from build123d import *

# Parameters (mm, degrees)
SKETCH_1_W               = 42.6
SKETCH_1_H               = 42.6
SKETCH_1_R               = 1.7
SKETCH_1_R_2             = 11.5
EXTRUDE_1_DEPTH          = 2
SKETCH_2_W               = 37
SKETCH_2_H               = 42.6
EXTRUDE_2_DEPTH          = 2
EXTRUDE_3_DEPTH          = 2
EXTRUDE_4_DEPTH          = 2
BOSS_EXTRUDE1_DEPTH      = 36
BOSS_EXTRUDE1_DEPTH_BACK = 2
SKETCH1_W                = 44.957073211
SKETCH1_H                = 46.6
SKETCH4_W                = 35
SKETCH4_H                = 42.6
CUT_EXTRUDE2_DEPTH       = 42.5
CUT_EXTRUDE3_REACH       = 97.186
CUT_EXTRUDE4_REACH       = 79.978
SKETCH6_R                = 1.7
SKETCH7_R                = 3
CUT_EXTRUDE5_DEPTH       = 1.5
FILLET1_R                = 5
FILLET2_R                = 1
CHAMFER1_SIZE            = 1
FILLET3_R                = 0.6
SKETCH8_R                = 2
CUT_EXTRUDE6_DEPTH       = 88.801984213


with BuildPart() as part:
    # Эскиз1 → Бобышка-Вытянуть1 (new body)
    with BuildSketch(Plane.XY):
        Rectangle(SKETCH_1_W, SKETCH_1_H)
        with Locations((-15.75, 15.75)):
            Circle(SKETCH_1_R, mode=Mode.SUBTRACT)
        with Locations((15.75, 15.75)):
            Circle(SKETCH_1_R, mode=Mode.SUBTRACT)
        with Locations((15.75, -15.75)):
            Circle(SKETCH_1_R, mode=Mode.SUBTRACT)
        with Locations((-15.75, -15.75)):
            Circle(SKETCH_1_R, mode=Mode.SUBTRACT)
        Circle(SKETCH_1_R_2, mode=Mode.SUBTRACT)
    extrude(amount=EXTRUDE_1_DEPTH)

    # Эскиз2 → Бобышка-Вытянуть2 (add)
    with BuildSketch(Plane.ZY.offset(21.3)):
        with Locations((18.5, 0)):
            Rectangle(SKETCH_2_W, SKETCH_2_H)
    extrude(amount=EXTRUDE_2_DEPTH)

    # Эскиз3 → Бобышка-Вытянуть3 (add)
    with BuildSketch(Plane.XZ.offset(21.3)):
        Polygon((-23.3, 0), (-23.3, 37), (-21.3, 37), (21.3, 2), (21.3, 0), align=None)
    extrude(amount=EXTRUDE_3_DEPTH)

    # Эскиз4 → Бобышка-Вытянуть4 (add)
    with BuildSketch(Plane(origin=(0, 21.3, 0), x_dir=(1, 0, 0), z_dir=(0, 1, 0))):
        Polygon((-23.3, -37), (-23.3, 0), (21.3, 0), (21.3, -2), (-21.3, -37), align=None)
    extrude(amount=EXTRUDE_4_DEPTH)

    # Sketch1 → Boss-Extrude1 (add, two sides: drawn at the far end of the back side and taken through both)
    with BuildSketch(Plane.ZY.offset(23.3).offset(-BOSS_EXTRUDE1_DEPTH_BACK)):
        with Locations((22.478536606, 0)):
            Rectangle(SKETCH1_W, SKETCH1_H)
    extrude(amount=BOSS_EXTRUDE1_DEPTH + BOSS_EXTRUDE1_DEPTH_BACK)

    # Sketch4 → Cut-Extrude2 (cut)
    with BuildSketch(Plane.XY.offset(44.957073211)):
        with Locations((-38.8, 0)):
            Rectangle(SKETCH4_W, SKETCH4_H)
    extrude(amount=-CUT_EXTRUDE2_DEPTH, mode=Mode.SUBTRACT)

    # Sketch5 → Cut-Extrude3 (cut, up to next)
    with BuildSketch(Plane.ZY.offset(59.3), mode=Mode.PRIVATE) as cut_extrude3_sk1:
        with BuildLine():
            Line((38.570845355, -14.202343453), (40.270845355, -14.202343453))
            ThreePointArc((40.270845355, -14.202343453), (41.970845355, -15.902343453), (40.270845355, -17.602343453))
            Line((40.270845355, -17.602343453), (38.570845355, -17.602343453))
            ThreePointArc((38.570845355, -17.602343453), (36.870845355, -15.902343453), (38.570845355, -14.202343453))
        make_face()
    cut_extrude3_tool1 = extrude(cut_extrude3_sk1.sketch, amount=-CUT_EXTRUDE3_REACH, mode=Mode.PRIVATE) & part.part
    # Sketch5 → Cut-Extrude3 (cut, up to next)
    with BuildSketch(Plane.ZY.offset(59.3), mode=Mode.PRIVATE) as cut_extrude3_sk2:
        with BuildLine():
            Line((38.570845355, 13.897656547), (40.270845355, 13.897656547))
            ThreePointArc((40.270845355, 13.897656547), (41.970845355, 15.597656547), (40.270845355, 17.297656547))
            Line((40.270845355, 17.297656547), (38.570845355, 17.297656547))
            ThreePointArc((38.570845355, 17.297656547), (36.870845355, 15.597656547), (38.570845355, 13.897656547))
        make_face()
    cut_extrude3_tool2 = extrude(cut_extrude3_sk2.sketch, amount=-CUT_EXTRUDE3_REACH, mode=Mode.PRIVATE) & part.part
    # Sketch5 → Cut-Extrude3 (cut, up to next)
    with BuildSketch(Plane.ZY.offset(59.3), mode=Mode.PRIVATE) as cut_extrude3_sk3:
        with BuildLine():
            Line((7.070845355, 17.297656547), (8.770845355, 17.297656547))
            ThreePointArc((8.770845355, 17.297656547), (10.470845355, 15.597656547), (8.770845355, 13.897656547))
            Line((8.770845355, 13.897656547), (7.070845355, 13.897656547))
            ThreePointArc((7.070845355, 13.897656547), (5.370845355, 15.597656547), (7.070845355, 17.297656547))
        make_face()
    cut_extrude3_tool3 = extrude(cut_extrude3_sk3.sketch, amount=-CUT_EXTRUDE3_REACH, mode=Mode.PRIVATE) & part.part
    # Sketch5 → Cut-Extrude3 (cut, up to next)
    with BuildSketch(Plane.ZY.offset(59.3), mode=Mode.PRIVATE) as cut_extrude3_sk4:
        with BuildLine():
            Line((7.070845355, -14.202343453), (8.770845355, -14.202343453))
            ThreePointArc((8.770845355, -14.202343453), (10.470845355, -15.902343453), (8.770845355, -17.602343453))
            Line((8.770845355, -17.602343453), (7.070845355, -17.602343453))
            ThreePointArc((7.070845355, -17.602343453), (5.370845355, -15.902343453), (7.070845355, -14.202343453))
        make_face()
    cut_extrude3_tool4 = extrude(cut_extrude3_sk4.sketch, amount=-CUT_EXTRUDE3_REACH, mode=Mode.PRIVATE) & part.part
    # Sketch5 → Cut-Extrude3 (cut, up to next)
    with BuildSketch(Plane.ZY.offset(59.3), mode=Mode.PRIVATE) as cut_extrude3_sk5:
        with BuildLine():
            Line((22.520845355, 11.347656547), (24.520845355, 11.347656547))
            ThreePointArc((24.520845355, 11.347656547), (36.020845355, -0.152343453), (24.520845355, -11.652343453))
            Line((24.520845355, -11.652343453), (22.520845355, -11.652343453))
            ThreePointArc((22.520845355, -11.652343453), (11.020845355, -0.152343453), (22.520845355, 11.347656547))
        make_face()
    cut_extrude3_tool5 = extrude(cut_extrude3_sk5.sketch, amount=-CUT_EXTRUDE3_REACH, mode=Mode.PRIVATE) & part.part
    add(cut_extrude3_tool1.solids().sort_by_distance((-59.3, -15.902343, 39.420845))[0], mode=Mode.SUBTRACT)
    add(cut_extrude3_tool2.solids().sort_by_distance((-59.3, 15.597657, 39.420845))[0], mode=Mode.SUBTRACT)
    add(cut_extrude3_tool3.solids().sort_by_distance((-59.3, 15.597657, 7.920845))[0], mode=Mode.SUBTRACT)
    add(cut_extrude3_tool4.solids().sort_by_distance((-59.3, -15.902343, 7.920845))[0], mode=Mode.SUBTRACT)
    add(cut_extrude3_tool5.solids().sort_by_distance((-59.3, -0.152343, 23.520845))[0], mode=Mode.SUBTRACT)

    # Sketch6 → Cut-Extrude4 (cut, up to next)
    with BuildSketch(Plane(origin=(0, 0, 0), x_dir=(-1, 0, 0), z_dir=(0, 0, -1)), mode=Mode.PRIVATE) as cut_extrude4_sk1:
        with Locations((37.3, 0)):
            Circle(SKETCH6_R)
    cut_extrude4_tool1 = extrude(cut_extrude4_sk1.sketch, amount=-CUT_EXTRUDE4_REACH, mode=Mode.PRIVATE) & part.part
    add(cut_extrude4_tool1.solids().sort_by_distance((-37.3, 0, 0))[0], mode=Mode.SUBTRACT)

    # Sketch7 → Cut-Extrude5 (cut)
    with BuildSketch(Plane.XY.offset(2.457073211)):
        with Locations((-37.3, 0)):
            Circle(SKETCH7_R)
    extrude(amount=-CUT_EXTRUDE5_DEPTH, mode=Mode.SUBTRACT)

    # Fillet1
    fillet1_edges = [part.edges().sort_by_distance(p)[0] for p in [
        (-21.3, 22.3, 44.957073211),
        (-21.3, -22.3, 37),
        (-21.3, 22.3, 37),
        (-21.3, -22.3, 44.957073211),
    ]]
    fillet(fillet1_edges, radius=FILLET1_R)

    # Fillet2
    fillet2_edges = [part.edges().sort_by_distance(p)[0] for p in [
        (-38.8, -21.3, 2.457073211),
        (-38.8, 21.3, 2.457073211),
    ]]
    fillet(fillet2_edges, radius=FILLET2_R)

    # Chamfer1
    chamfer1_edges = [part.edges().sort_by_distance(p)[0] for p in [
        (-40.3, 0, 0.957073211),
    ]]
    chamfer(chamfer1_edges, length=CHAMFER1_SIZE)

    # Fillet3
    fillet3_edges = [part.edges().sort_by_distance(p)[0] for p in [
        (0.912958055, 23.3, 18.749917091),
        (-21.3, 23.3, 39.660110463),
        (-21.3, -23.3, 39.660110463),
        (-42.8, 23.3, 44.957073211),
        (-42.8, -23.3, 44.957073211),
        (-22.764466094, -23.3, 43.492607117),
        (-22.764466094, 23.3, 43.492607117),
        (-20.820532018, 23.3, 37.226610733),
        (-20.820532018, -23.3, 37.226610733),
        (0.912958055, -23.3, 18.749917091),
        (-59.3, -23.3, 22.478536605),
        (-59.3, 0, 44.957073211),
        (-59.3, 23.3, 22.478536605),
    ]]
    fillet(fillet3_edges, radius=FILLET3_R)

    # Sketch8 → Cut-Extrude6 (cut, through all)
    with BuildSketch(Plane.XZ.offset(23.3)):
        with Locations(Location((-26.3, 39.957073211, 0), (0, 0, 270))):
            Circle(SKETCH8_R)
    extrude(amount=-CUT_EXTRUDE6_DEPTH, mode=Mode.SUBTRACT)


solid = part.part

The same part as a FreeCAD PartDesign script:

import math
import FreeCAD as App
import Part
import Sketcher
Q = App.Units.Quantity


def edges_at(feature, points):
    """Names of the edges that pass closest to the given points."""
    edges = feature.Shape.Edges
    near = lambda p: min(range(len(edges)), key=lambda i: edges[i].distToShape(Part.Vertex(*p))[0])
    return sorted({f"Edge{near(p) + 1}" for p in points})


def add_polygon(sketch, points):
    """Adds a closed chain of lines whose ends are joined by coincident constraints."""
    first, n = sketch.GeometryCount, len(points)
    for a, b in zip(points, points[1:] + points[:1]):
        sketch.addGeometry(Part.LineSegment(App.Vector(*a, 0), App.Vector(*b, 0)), False)
    for i in range(n):
        sketch.addConstraint(Sketcher.Constraint("Coincident", first + i, 2, first + (i + 1) % n, 1))

doc = App.newDocument("Part")
body = doc.addObject("PartDesign::Body", "Body")

# Sketch on XY plane
sketch1 = doc.addObject("Sketcher::SketchObject", "Sketch")
body.addObject(sketch1)
sketch1.AttachmentSupport = (doc.XY_Plane, [""])
sketch1.MapMode = "FlatFace"
add_polygon(sketch1, [(-21.3, 21.3), (-21.3, -21.3), (21.3, -21.3), (21.3, 21.3)])  # lines 0-3
sketch1.addGeometry(Part.Circle(App.Vector(-15.8, -15.8, 0), App.Vector(0, 0, 1), 1.7), False)  # 4
sketch1.addGeometry(Part.Circle(App.Vector(15.8, -15.8, 0), App.Vector(0, 0, 1), 1.7), False)  # 5
sketch1.addGeometry(Part.Circle(App.Vector(-15.8, 15.8, 0), App.Vector(0, 0, 1), 1.7), False)  # 6
sketch1.addGeometry(Part.Circle(App.Vector(0, 0, 0), App.Vector(0, 0, 1), 11.5), False)  # 7
sketch1.addGeometry(Part.Circle(App.Vector(15.8, 15.8, 0), App.Vector(0, 0, 1), 1.7), False)  # 8
sketch1.addConstraint([
    Sketcher.Constraint("Vertical", 0),
    Sketcher.Constraint("Horizontal", 1),
    Sketcher.Constraint("Vertical", 2),
    Sketcher.Constraint("Horizontal", 3),
    Sketcher.Constraint("Coincident", 7, 3, -1, 1),
    Sketcher.Constraint("Equal", 4, 5),
    Sketcher.Constraint("Equal", 5, 6),
    Sketcher.Constraint("Equal", 6, 8),
    Sketcher.Constraint("Symmetric", 5, 3, 6, 3, -1, 1),
    Sketcher.Constraint("Symmetric", 4, 3, 8, 3, -1, 1),
    Sketcher.Constraint("Symmetric", 0, 2, 2, 2, -1, 1),
    Sketcher.Constraint("Symmetric", 4, 3, 5, 3, -2),
    Sketcher.Constraint("Equal", 3, 0),
    Sketcher.Constraint("Diameter", 7, Q("23 mm")),
    Sketcher.Constraint("Diameter", 4, Q("3.4 mm")),
    Sketcher.Constraint("DistanceX", 1, 1, 1, 2, Q("42.6 mm")),
    Sketcher.Constraint("DistanceX", 4, 3, 5, 3, Q("31.5 mm")),
    Sketcher.Constraint("DistanceY", 4, 3, 6, 3, Q("31.5 mm")),
])
pad1 = doc.addObject("PartDesign::Pad", "Pad")
body.addObject(pad1)
pad1.Profile = sketch1
pad1.Length = 2

# Sketch on YZ plane
sketch2 = doc.addObject("Sketcher::SketchObject", "Sketch001")
body.addObject(sketch2)
sketch2.AttachmentSupport = (doc.YZ_Plane, [""])
sketch2.MapMode = "FlatFace"
sketch2.AttachmentOffset = App.Placement(App.Vector(0, 0, -21.3), App.Rotation())
add_polygon(sketch2, [(21, 0), (-21, 0), (-21, 37), (21, 37)])  # lines 0-3
sketch2.addConstraint([
    Sketcher.Constraint("Horizontal", 0),
    Sketcher.Constraint("Vertical", 1),
    Sketcher.Constraint("Horizontal", 2),
    Sketcher.Constraint("Vertical", 3),
    Sketcher.Constraint("Symmetric", 0, 2, 3, 2, -1, 1),
    Sketcher.Constraint("DistanceY", 1, 1, 1, 2, Q("37 mm")),
    Sketcher.Constraint("DistanceX", 0, 2, 0, 1, Q("42.6 mm")),
])
pad2 = doc.addObject("PartDesign::Pad", "Pad001")
body.addObject(pad2)
pad2.Profile = sketch2
pad2.Length = 2
pad2.Reversed = True

# Sketch on XZ plane
sketch3 = doc.addObject("Sketcher::SketchObject", "Sketch002")
body.addObject(sketch3)
sketch3.AttachmentSupport = (doc.XZ_Plane, [""])
sketch3.MapMode = "FlatFace"
sketch3.AttachmentOffset = App.Placement(App.Vector(0, 0, 21.3), App.Rotation())
add_polygon(sketch3, [(-23.3, 37), (-23.3, 0), (21.3, 0), (21.3, 2), (-21.3, 37)])  # lines 0-4
sketch3.addConstraint([
    Sketcher.Constraint("Vertical", 0),
    Sketcher.Constraint("Horizontal", 1),
    Sketcher.Constraint("Vertical", 2),
    Sketcher.Constraint("Horizontal", 4),
    Sketcher.Constraint("PointOnObject", 0, 2, -1),
    Sketcher.Constraint("Equal", 4, 2),
    Sketcher.Constraint("DistanceX", 4, 2, 4, 1, Q("2 mm")),
    Sketcher.Constraint("DistanceY", 0, 2, 0, 1, Q("37 mm")),
    Sketcher.Constraint("DistanceX", 1, 1, 1, 2, Q("44.6 mm")),
    Sketcher.Constraint("DistanceX", 0, 2, -1, 1, Q("23.3 mm")),
])
pad3 = doc.addObject("PartDesign::Pad", "Pad002")
body.addObject(pad3)
pad3.Profile = sketch3
pad3.Length = 2

# Sketch on XZ plane
sketch4 = doc.addObject("Sketcher::SketchObject", "Sketch003")
body.addObject(sketch4)
sketch4.AttachmentSupport = (doc.XZ_Plane, [""])
sketch4.MapMode = "FlatFace"
sketch4.AttachmentOffset = App.Placement(App.Vector(0, 0, -21.3), App.Rotation())
add_polygon(sketch4, [(-23.3, 0), (-23.3, 37), (-21.3, 37), (21.3, 2), (21.3, 0)])  # lines 0-4
sketch4.addConstraint([
    Sketcher.Constraint("Vertical", 0),
    Sketcher.Constraint("Horizontal", 1),
    Sketcher.Constraint("Vertical", 3),
    Sketcher.Constraint("Horizontal", 4),
    Sketcher.Constraint("PointOnObject", 3, 2, -1),
    Sketcher.Constraint("Equal", 1, 3),
    Sketcher.Constraint("DistanceX", 1, 1, 1, 2, Q("2 mm")),
    Sketcher.Constraint("DistanceY", 0, 1, 0, 2, Q("37 mm")),
    Sketcher.Constraint("DistanceX", 4, 2, 4, 1, Q("44.6 mm")),
    Sketcher.Constraint("DistanceX", 0, 2, -1, 1, Q("23.3 mm")),
])
pad4 = doc.addObject("PartDesign::Pad", "Pad003")
body.addObject(pad4)
pad4.Profile = sketch4
pad4.Length = 2
pad4.Reversed = True

# Sketch on YZ plane
sketch5 = doc.addObject("Sketcher::SketchObject", "Sketch004")
body.addObject(sketch5)
sketch5.AttachmentSupport = (doc.YZ_Plane, [""])
sketch5.MapMode = "FlatFace"
sketch5.AttachmentOffset = App.Placement(App.Vector(0, 0, -23.3), App.Rotation())
add_polygon(sketch5, [(23, 0), (-23, 0), (-23, 45), (23, 45)])  # lines 0-3
sketch5.addConstraint([
    Sketcher.Constraint("Horizontal", 0),
    Sketcher.Constraint("Vertical", 1),
    Sketcher.Constraint("Horizontal", 2),
    Sketcher.Constraint("Vertical", 3),
    Sketcher.Constraint("Symmetric", 0, 2, 3, 2, -1, 1),
    Sketcher.Constraint("DistanceX", 0, 2, 0, 1, Q("46.6 mm")),
    Sketcher.Constraint("DistanceY", 1, 1, 1, 2, Q("44.957073 mm")),
])
pad5 = doc.addObject("PartDesign::Pad", "Pad004")
body.addObject(pad5)
pad5.Profile = sketch5
pad5.Type = "TwoLengths"
pad5.Length = 36
pad5.Length2 = 2
pad5.Reversed = True

# Sketch on XY plane
sketch6 = doc.addObject("Sketcher::SketchObject", "Sketch005")
body.addObject(sketch6)
sketch6.AttachmentSupport = (doc.XY_Plane, [""])
sketch6.MapMode = "FlatFace"
sketch6.AttachmentOffset = App.Placement(App.Vector(0, 0, 44.957073), App.Rotation())
add_polygon(sketch6, [(-56, 21), (-56, -21), (-21, -21), (-21, 21)])  # lines 0-3
sketch6.addConstraint([
    Sketcher.Constraint("Vertical", 0),
    Sketcher.Constraint("Horizontal", 1),
    Sketcher.Constraint("Vertical", 2),
    Sketcher.Constraint("Horizontal", 3),
    Sketcher.Constraint("DistanceX", 1, 1, 1, 2, Q("35 mm")),
    Sketcher.Constraint("DistanceY", 0, 2, 0, 1, Q("42.6 mm")),
    Sketcher.Constraint("DistanceX", 0, 2, -1, 1, Q("56.3 mm")),
    Sketcher.Constraint("DistanceY", 0, 2, -1, 1, Q("21.3 mm")),
])
pocket1 = doc.addObject("PartDesign::Pocket", "Pocket")
body.addObject(pocket1)
pocket1.Profile = sketch6
pocket1.Length = 42.5

# Sketch on YZ plane
sketch7 = doc.addObject("Sketcher::SketchObject", "Sketch006")
body.addObject(sketch7)
sketch7.AttachmentSupport = (doc.YZ_Plane, [""])
sketch7.MapMode = "FlatFace"
sketch7.AttachmentOffset = App.Placement(App.Vector(0, 0, -59.3), App.Rotation())
sketch7.addGeometry([
    Part.LineSegment(App.Vector(-14.2, 40.3, 0), App.Vector(-14.2, 38.6, 0)),
    Part.ArcOfCircle(Part.Circle(App.Vector(-15.9, 38.6, 0), App.Vector(0, 0, 1), 1.7), math.radians(180), math.radians(360)),
    Part.LineSegment(App.Vector(-17.6, 38.6, 0), App.Vector(-17.6, 40.3, 0)),
    Part.ArcOfCircle(Part.Circle(App.Vector(-15.9, 40.3, 0), App.Vector(0, 0, 1), 1.7), math.radians(0), math.radians(180)),
], False)
sketch7.addConstraint([
    Sketcher.Constraint("Tangent", 0, 2, 1, 2),
    Sketcher.Constraint("Tangent", 1, 1, 2, 1),
    Sketcher.Constraint("Tangent", 2, 2, 3, 2),
    Sketcher.Constraint("Tangent", 3, 1, 0, 1),
    Sketcher.Constraint("Vertical", 0),
    Sketcher.Constraint("Vertical", 2),
    Sketcher.Constraint("Radius", 1, Q("1.7 mm")),
    Sketcher.Constraint("DistanceY", 0, 2, 0, 1, Q("1.7 mm")),
    Sketcher.Constraint("DistanceX", 1, 3, -1, 1, Q("15.902343 mm")),
    Sketcher.Constraint("DistanceY", -1, 1, 1, 3, Q("38.570845 mm")),
])
pocket2 = doc.addObject("PartDesign::Pocket", "Pocket001")
body.addObject(pocket2)
pocket2.Profile = sketch7
pocket2.Type = "UpToFirst"
pocket2.Reversed = True

# Sketch on YZ plane
sketch8 = doc.addObject("Sketcher::SketchObject", "Sketch007")
body.addObject(sketch8)
sketch8.AttachmentSupport = (doc.YZ_Plane, [""])
sketch8.MapMode = "FlatFace"
sketch8.AttachmentOffset = App.Placement(App.Vector(0, 0, -59.3), App.Rotation())
sketch8.addGeometry([
    Part.LineSegment(App.Vector(13.9, 38.6, 0), App.Vector(13.9, 40.3, 0)),
    Part.ArcOfCircle(Part.Circle(App.Vector(15.6, 40.3, 0), App.Vector(0, 0, 1), 1.7), math.radians(0), math.radians(180)),
    Part.LineSegment(App.Vector(17.3, 40.3, 0), App.Vector(17.3, 38.6, 0)),
    Part.ArcOfCircle(Part.Circle(App.Vector(15.6, 38.6, 0), App.Vector(0, 0, 1), 1.7), math.radians(180), math.radians(360)),
], False)
sketch8.addConstraint([
    Sketcher.Constraint("Tangent", 0, 2, 1, 2),
    Sketcher.Constraint("Tangent", 1, 1, 2, 1),
    Sketcher.Constraint("Tangent", 2, 2, 3, 2),
    Sketcher.Constraint("Tangent", 3, 1, 0, 1),
    Sketcher.Constraint("Vertical", 0),
    Sketcher.Constraint("Vertical", 2),
    Sketcher.Constraint("Radius", 1, Q("1.7 mm")),
    Sketcher.Constraint("DistanceY", 0, 1, 0, 2, Q("1.7 mm")),
    Sketcher.Constraint("DistanceX", -1, 1, 1, 3, Q("15.597657 mm")),
    Sketcher.Constraint("DistanceY", -1, 1, 1, 3, Q("40.270845 mm")),
])
pocket3 = doc.addObject("PartDesign::Pocket", "Pocket002")
body.addObject(pocket3)
pocket3.Profile = sketch8
pocket3.Type = "UpToFirst"
pocket3.Reversed = True

# Sketch on YZ plane
sketch9 = doc.addObject("Sketcher::SketchObject", "Sketch008")
body.addObject(sketch9)
sketch9.AttachmentSupport = (doc.YZ_Plane, [""])
sketch9.MapMode = "FlatFace"
sketch9.AttachmentOffset = App.Placement(App.Vector(0, 0, -59.3), App.Rotation())
sketch9.addGeometry([
    Part.LineSegment(App.Vector(17.3, 8.8, 0), App.Vector(17.3, 7.1, 0)),
    Part.ArcOfCircle(Part.Circle(App.Vector(15.6, 7.1, 0), App.Vector(0, 0, 1), 1.7), math.radians(180), math.radians(360)),
    Part.LineSegment(App.Vector(13.9, 7.1, 0), App.Vector(13.9, 8.8, 0)),
    Part.ArcOfCircle(Part.Circle(App.Vector(15.6, 8.8, 0), App.Vector(0, 0, 1), 1.7), math.radians(0), math.radians(180)),
], False)
sketch9.addConstraint([
    Sketcher.Constraint("Tangent", 0, 2, 1, 2),
    Sketcher.Constraint("Tangent", 1, 1, 2, 1),
    Sketcher.Constraint("Tangent", 2, 2, 3, 2),
    Sketcher.Constraint("Tangent", 3, 1, 0, 1),
    Sketcher.Constraint("Vertical", 0),
    Sketcher.Constraint("Vertical", 2),
    Sketcher.Constraint("Radius", 1, Q("1.7 mm")),
    Sketcher.Constraint("DistanceY", 0, 2, 0, 1, Q("1.7 mm")),
    Sketcher.Constraint("DistanceX", -1, 1, 1, 3, Q("15.597657 mm")),
    Sketcher.Constraint("DistanceY", -1, 1, 1, 3, Q("7.070845 mm")),
])
pocket4 = doc.addObject("PartDesign::Pocket", "Pocket003")
body.addObject(pocket4)
pocket4.Profile = sketch9
pocket4.Type = "UpToFirst"
pocket4.Reversed = True

# Sketch on YZ plane
sketch10 = doc.addObject("Sketcher::SketchObject", "Sketch009")
body.addObject(sketch10)
sketch10.AttachmentSupport = (doc.YZ_Plane, [""])
sketch10.MapMode = "FlatFace"
sketch10.AttachmentOffset = App.Placement(App.Vector(0, 0, -59.3), App.Rotation())
sketch10.addGeometry([
    Part.LineSegment(App.Vector(-14.2, 8.8, 0), App.Vector(-14.2, 7.1, 0)),
    Part.ArcOfCircle(Part.Circle(App.Vector(-15.9, 7.1, 0), App.Vector(0, 0, 1), 1.7), math.radians(180), math.radians(360)),
    Part.LineSegment(App.Vector(-17.6, 7.1, 0), App.Vector(-17.6, 8.8, 0)),
    Part.ArcOfCircle(Part.Circle(App.Vector(-15.9, 8.8, 0), App.Vector(0, 0, 1), 1.7), math.radians(0), math.radians(180)),
], False)
sketch10.addConstraint([
    Sketcher.Constraint("Tangent", 0, 2, 1, 2),
    Sketcher.Constraint("Tangent", 1, 1, 2, 1),
    Sketcher.Constraint("Tangent", 2, 2, 3, 2),
    Sketcher.Constraint("Tangent", 3, 1, 0, 1),
    Sketcher.Constraint("Vertical", 0),
    Sketcher.Constraint("Vertical", 2),
    Sketcher.Constraint("Radius", 1, Q("1.7 mm")),
    Sketcher.Constraint("DistanceY", 0, 2, 0, 1, Q("1.7 mm")),
    Sketcher.Constraint("DistanceX", 1, 3, -1, 1, Q("15.902343 mm")),
    Sketcher.Constraint("DistanceY", -1, 1, 1, 3, Q("7.070845 mm")),
])
pocket5 = doc.addObject("PartDesign::Pocket", "Pocket004")
body.addObject(pocket5)
pocket5.Profile = sketch10
pocket5.Type = "UpToFirst"
pocket5.Reversed = True

# Sketch on YZ plane
sketch11 = doc.addObject("Sketcher::SketchObject", "Sketch010")
body.addObject(sketch11)
sketch11.AttachmentSupport = (doc.YZ_Plane, [""])
sketch11.MapMode = "FlatFace"
sketch11.AttachmentOffset = App.Placement(App.Vector(0, 0, -59.3), App.Rotation())
sketch11.addGeometry([
    Part.LineSegment(App.Vector(11.3, 24.5, 0), App.Vector(11.3, 22.5, 0)),
    Part.ArcOfCircle(Part.Circle(App.Vector(-0.2, 22.5, 0), App.Vector(0, 0, 1), 11.5), math.radians(180), math.radians(360)),
    Part.LineSegment(App.Vector(-11.7, 22.5, 0), App.Vector(-11.7, 24.5, 0)),
    Part.ArcOfCircle(Part.Circle(App.Vector(-0.2, 24.5, 0), App.Vector(0, 0, 1), 11.5), math.radians(0), math.radians(180)),
], False)
sketch11.addConstraint([
    Sketcher.Constraint("Tangent", 0, 2, 1, 2),
    Sketcher.Constraint("Tangent", 1, 1, 2, 1),
    Sketcher.Constraint("Tangent", 2, 2, 3, 2),
    Sketcher.Constraint("Tangent", 3, 1, 0, 1),
    Sketcher.Constraint("Vertical", 0),
    Sketcher.Constraint("Vertical", 2),
    Sketcher.Constraint("Radius", 1, Q("11.5 mm")),
    Sketcher.Constraint("DistanceY", 0, 2, 0, 1, Q("2 mm")),
    Sketcher.Constraint("DistanceX", 1, 3, -1, 1, Q("0.152343 mm")),
    Sketcher.Constraint("DistanceY", -1, 1, 1, 3, Q("22.520845 mm")),
])
pocket6 = doc.addObject("PartDesign::Pocket", "Pocket005")
body.addObject(pocket6)
pocket6.Profile = sketch11
pocket6.Type = "UpToFirst"
pocket6.Reversed = True

# Sketch on XY plane
sketch12 = doc.addObject("Sketcher::SketchObject", "Sketch011")
body.addObject(sketch12)
sketch12.AttachmentSupport = (doc.XY_Plane, [""])
sketch12.MapMode = "FlatFace"
sketch12.addGeometry(Part.Circle(App.Vector(-37.3, 0, 0), App.Vector(0, 0, 1), 1.7), False)
sketch12.addConstraint([
    Sketcher.Constraint("PointOnObject", 0, 3, -1),
    Sketcher.Constraint("Diameter", 0, Q("3.4 mm")),
    Sketcher.Constraint("DistanceX", 0, 3, -1, 1, Q("37.3 mm")),
])
pocket7 = doc.addObject("PartDesign::Pocket", "Pocket006")
body.addObject(pocket7)
pocket7.Profile = sketch12
pocket7.Type = "UpToFirst"
pocket7.Reversed = True

# Sketch on XY plane
sketch13 = doc.addObject("Sketcher::SketchObject", "Sketch012")
body.addObject(sketch13)
sketch13.AttachmentSupport = (doc.XY_Plane, [""])
sketch13.MapMode = "FlatFace"
sketch13.AttachmentOffset = App.Placement(App.Vector(0, 0, 2.457073), App.Rotation())
sketch13.addGeometry(Part.Circle(App.Vector(-37.3, 0, 0), App.Vector(0, 0, 1), 3), False)
sketch13.addConstraint([
    Sketcher.Constraint("PointOnObject", 0, 3, -1),
    Sketcher.Constraint("Diameter", 0, Q("6 mm")),
    Sketcher.Constraint("DistanceX", 0, 3, -1, 1, Q("37.3 mm")),
])
pocket8 = doc.addObject("PartDesign::Pocket", "Pocket007")
body.addObject(pocket8)
pocket8.Profile = sketch13
pocket8.Length = 1.5
doc.recompute()

fillet = doc.addObject("PartDesign::Fillet", "Fillet")
body.addObject(fillet)
fillet.Base = (pocket8, edges_at(pocket8, [
    (-21.3, 22.3, 44.957),
    (-21.3, -22.3, 37),
    (-21.3, 22.3, 37),
    (-21.3, -22.3, 44.957),
]))
fillet.Radius = 5
doc.recompute()

fillet2 = doc.addObject("PartDesign::Fillet", "Fillet001")
body.addObject(fillet2)
fillet2.Base = (fillet, edges_at(fillet, [(-38.8, -21.3, 2.457), (-38.8, 21.3, 2.457)]))
fillet2.Radius = 1
doc.recompute()

chamfer = doc.addObject("PartDesign::Chamfer", "Chamfer")
body.addObject(chamfer)
chamfer.Base = (fillet2, edges_at(fillet2, [(-40.3, 0, 0.957)]))
chamfer.Size = 1
doc.recompute()

fillet3 = doc.addObject("PartDesign::Fillet", "Fillet002")
body.addObject(fillet3)
fillet3.Base = (chamfer, edges_at(chamfer, [
    (0.913, 23.3, 18.75),
    (-21.3, 23.3, 39.66),
    (-21.3, -23.3, 39.66),
    (-42.8, 23.3, 44.957),
    (-42.8, -23.3, 44.957),
    (-22.764, -23.3, 43.493),
    (-22.764, 23.3, 43.493),
    (-20.821, 23.3, 37.227),
    (-20.821, -23.3, 37.227),
    (0.913, -23.3, 18.75),
    (-59.3, -23.3, 22.479),
    (-59.3, 0, 44.957),
    (-59.3, 23.3, 22.479),
]))
fillet3.Radius = 0.6

# Sketch on XZ plane
sketch14 = doc.addObject("Sketcher::SketchObject", "Sketch013")
body.addObject(sketch14)
sketch14.AttachmentSupport = (doc.XZ_Plane, [""])
sketch14.MapMode = "FlatFace"
sketch14.AttachmentOffset = App.Placement(App.Vector(0, 0, 23.3), App.Rotation())
sketch14.addGeometry(Part.Circle(App.Vector(-26.3, 40, 0), App.Vector(0, 0, 1), 2), False)
sketch14.addConstraint([
    Sketcher.Constraint("Diameter", 0, Q("4 mm")),
    Sketcher.Constraint("DistanceX", 0, 3, -1, 1, Q("26.3 mm")),
    Sketcher.Constraint("DistanceY", -1, 1, 0, 3, Q("39.957073 mm")),
])
pocket9 = doc.addObject("PartDesign::Pocket", "Pocket008")
body.addObject(pocket9)
pocket9.Profile = sketch14
pocket9.Type = "ThroughAll"

doc.recompute()
